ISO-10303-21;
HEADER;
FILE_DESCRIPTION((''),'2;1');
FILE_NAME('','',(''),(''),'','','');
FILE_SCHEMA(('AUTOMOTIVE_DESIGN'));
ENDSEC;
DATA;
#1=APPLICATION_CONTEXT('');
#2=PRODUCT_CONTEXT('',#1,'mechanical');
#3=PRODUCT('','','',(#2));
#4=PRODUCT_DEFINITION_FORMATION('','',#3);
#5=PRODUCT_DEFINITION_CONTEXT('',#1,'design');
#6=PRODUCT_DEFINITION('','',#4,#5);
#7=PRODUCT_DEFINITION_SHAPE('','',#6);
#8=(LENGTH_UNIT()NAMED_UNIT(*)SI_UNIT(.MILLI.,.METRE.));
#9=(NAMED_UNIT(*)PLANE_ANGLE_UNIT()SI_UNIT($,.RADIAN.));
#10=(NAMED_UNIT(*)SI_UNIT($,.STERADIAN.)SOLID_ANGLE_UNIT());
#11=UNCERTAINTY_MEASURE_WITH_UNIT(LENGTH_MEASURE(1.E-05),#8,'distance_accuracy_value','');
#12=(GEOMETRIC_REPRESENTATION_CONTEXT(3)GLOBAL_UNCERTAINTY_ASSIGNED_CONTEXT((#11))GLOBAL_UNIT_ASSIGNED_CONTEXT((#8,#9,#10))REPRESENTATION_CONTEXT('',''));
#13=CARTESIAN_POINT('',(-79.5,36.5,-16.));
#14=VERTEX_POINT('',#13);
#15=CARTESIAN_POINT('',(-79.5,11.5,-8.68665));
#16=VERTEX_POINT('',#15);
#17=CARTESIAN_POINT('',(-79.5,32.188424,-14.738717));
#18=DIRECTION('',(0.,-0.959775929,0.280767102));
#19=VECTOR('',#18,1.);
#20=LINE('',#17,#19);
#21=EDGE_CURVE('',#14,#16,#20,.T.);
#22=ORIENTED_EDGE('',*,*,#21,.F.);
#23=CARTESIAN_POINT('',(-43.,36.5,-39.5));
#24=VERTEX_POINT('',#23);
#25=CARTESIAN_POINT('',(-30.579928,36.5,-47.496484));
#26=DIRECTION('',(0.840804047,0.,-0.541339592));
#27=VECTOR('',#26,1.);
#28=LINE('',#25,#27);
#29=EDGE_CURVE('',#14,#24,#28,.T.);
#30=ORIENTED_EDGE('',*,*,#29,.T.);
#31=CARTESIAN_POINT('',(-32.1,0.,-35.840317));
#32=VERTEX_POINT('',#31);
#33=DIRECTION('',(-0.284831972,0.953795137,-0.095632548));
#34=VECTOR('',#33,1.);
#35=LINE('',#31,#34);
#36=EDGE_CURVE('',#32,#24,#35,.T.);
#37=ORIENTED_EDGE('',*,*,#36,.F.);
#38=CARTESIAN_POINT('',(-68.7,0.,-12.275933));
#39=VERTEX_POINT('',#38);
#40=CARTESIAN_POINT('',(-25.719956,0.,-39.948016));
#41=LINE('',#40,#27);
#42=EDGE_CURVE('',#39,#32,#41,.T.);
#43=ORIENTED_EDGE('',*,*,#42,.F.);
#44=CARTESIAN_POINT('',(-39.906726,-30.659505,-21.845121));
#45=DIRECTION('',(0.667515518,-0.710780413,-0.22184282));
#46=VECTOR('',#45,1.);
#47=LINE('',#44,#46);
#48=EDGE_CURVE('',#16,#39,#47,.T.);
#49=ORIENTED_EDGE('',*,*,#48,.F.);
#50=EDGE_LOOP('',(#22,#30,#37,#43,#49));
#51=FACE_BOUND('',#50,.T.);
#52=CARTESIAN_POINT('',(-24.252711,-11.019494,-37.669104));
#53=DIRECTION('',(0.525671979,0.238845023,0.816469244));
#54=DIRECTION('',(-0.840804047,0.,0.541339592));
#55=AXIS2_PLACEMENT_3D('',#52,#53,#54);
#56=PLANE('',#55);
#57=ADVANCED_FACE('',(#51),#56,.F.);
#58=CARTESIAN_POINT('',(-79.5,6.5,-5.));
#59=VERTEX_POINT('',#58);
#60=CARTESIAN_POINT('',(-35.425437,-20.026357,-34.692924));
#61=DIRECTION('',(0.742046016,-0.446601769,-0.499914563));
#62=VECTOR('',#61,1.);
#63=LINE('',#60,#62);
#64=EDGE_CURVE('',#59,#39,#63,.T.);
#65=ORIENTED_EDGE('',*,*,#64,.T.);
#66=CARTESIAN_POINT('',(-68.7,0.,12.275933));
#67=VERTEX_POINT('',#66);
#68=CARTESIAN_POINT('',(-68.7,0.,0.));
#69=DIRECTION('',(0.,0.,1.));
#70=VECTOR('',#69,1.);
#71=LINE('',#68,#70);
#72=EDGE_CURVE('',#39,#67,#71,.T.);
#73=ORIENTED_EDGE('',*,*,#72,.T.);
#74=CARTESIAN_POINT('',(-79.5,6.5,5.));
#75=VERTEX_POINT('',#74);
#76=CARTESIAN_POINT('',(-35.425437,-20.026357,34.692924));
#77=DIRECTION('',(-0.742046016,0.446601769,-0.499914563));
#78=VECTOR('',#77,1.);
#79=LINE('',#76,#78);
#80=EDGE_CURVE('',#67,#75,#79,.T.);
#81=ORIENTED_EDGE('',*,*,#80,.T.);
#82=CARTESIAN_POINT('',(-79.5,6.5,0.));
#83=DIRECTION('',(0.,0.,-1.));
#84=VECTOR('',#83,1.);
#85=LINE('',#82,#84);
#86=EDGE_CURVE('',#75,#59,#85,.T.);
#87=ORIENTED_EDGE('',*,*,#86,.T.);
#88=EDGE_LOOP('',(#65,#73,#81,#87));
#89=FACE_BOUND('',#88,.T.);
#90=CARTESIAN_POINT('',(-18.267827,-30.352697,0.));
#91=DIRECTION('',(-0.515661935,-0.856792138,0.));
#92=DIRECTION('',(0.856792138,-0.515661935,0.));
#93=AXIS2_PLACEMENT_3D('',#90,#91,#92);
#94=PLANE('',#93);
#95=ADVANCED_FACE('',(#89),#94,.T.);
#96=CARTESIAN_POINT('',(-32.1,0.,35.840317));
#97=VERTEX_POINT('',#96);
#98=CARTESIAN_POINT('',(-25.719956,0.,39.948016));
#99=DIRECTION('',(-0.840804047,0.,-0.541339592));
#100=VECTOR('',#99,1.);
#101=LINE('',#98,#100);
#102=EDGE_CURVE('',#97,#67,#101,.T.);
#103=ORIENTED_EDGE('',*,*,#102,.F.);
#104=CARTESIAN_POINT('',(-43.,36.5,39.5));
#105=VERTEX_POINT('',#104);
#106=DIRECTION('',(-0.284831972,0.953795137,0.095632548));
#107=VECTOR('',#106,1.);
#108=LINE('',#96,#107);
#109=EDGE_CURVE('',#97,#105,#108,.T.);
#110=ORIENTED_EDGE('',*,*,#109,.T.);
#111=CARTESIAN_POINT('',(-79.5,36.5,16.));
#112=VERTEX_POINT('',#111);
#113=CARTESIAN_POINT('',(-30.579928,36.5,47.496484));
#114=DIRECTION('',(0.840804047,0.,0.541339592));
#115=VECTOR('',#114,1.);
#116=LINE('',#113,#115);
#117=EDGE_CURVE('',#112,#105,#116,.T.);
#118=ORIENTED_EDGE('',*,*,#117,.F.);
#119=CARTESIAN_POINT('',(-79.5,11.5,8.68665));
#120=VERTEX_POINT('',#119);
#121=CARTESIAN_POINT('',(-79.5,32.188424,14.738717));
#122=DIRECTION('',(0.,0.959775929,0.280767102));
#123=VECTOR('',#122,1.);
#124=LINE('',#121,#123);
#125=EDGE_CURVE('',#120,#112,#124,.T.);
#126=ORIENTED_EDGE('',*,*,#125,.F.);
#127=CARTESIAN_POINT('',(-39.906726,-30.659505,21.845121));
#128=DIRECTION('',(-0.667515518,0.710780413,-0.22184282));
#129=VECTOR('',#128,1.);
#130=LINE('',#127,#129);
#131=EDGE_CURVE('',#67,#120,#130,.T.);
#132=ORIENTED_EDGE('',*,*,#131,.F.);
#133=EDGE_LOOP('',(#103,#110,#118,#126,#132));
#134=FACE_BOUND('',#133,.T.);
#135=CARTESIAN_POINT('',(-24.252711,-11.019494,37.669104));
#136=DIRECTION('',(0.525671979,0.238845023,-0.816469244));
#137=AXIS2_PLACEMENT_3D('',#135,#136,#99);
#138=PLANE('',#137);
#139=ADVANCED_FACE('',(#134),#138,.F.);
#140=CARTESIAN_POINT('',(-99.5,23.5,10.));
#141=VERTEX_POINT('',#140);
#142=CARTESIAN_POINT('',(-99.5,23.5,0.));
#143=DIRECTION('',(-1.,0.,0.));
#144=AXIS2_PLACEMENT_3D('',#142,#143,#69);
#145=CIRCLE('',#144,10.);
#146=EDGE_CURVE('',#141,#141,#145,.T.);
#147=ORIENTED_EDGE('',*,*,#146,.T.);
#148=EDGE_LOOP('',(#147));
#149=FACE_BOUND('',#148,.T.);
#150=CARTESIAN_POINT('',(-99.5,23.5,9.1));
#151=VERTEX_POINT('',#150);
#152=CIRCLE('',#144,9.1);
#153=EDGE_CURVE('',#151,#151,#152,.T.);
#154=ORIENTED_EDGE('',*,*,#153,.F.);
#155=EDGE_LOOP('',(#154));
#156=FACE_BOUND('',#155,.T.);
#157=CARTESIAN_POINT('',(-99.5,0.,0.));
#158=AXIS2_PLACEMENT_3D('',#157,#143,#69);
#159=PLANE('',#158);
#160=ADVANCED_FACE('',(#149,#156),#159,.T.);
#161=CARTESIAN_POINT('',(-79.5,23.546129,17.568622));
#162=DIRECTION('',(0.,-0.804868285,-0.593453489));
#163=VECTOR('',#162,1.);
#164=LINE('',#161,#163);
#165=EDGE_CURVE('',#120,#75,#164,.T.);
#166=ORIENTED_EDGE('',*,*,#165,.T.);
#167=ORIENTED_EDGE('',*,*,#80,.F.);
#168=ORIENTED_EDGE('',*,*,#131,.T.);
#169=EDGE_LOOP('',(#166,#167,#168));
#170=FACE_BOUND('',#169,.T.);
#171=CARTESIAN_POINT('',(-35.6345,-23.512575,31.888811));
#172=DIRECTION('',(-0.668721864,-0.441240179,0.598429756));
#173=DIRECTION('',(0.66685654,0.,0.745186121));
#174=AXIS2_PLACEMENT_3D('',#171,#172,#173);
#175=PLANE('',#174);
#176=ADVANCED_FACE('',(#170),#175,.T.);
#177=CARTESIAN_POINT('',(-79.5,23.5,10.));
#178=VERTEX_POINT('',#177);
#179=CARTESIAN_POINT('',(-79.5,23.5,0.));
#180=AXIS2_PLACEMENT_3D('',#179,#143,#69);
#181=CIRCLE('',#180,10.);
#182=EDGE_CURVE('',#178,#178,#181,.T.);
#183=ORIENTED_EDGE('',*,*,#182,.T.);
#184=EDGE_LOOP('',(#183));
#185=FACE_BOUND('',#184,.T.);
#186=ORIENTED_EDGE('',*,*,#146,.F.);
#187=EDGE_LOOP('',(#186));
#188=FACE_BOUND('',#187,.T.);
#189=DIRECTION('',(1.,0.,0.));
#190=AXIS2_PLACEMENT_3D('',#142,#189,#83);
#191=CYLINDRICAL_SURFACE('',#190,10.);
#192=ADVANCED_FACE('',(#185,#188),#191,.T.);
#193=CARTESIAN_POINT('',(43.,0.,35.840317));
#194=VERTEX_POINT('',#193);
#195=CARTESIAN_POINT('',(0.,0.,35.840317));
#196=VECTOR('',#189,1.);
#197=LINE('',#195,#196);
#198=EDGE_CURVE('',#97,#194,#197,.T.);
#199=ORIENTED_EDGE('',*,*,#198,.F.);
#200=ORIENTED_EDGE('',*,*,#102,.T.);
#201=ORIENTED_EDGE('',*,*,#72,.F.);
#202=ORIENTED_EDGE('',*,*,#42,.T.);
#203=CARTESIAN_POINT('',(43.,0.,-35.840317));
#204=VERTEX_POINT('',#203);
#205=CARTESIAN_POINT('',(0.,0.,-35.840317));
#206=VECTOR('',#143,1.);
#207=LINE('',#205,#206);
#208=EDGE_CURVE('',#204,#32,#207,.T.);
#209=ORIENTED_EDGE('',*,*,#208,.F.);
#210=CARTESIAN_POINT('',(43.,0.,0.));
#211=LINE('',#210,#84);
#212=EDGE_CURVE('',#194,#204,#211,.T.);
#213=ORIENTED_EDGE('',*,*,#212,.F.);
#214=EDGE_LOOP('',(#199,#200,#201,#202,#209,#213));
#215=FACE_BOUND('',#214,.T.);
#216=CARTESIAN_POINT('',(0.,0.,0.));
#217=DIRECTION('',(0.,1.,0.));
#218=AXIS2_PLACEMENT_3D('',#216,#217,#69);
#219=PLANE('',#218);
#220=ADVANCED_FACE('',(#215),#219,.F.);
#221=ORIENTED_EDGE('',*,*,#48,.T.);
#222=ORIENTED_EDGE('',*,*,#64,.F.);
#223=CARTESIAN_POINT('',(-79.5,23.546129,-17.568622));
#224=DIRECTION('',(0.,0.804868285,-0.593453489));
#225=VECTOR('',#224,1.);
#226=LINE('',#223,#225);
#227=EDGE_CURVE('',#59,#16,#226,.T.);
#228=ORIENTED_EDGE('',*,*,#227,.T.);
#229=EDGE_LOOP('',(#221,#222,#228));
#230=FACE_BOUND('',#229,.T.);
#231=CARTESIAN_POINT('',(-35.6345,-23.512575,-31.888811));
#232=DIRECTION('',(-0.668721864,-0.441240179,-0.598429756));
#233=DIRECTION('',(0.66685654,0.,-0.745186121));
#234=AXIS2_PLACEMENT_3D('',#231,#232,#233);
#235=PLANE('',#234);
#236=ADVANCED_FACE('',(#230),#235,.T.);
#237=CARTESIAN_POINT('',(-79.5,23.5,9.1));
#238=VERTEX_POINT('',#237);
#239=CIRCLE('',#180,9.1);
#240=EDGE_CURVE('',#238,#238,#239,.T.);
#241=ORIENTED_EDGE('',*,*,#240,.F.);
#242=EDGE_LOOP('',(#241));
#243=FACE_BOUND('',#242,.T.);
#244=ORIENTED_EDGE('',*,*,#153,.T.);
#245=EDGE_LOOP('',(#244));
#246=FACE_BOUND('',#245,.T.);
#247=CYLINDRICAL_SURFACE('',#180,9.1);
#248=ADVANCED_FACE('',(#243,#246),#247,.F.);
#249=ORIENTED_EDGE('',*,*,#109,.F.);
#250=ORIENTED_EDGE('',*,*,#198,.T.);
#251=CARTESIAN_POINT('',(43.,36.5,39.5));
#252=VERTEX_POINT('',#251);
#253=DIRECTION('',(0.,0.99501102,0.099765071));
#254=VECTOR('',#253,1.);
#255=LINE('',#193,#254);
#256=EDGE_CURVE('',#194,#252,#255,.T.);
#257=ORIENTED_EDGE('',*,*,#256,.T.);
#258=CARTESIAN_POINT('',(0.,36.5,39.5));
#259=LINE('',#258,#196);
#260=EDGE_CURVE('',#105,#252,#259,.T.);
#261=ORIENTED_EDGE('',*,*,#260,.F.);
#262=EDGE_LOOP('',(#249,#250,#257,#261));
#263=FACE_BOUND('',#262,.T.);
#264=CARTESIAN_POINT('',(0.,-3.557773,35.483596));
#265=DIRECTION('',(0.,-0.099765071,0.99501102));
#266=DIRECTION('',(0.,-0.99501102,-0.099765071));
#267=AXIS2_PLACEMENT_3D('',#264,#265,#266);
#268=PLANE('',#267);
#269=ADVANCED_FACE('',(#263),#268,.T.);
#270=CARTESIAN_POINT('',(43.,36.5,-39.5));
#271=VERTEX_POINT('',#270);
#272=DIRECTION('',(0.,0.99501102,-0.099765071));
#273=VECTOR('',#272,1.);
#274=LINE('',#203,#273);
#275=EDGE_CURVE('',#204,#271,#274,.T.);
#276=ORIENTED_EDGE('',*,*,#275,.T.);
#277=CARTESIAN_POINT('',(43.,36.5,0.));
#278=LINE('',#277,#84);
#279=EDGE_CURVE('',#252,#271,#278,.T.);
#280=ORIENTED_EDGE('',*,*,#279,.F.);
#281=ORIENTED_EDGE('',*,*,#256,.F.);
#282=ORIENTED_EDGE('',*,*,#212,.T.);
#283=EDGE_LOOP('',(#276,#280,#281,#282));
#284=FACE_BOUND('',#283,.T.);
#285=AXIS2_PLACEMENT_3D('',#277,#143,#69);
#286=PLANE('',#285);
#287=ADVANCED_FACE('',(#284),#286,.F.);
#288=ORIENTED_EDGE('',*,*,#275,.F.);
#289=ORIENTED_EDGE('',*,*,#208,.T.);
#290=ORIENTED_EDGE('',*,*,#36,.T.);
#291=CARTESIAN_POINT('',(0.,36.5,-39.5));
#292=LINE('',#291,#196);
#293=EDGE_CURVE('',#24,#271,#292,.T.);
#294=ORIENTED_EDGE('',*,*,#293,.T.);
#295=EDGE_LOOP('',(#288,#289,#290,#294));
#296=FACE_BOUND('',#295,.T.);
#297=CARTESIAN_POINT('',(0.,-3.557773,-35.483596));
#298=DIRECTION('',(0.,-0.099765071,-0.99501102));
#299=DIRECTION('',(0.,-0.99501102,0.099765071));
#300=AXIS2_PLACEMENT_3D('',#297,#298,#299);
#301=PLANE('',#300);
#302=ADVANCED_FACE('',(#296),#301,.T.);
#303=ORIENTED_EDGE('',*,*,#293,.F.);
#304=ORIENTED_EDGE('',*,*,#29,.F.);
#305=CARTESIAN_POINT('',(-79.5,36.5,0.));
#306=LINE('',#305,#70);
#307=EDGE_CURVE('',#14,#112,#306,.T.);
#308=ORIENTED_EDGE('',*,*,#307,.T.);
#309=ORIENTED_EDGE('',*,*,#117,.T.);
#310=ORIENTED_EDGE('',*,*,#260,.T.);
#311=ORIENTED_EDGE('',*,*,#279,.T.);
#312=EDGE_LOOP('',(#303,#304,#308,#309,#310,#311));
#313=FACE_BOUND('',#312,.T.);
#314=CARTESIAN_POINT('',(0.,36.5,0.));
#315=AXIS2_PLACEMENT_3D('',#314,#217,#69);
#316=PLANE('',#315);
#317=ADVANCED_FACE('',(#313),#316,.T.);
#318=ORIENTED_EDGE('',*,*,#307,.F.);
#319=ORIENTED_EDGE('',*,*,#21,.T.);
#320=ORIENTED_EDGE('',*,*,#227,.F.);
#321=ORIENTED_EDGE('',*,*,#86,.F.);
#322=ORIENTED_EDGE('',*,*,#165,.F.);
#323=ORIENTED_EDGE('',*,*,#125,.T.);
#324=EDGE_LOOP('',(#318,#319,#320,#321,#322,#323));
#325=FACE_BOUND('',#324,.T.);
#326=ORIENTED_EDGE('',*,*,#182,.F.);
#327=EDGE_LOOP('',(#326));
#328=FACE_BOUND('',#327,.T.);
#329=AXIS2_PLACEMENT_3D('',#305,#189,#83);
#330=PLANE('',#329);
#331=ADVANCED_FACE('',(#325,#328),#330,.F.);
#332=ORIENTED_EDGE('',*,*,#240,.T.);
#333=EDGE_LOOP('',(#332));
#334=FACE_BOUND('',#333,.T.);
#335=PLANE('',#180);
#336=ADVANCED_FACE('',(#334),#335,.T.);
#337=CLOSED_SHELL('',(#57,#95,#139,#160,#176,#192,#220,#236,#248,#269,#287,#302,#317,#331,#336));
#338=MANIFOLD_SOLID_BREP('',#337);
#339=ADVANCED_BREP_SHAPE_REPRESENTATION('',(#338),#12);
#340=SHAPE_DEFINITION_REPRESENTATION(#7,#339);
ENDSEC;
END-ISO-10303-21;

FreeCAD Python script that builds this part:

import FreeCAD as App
import Part
import Sketcher

V = App.Vector

doc = App.newDocument("Part")
body = doc.addObject("PartDesign::Body", "Body")

sketch1 = body.newObject("Sketcher::SketchObject", "Sketch")
sketch1.AttachmentSupport = (doc.getObject("XZ_Plane"), [""])
sketch1.MapMode = "FlatFace"
sketch1.addGeometry([
    Part.LineSegment(V(-79.5, -16, 0), V(-79.5, 16, 0)),
    Part.LineSegment(V(-79.5, 16, 0), V(-43, 39.5, 0)),
    Part.LineSegment(V(-43, 39.5, 0), V(43, 39.5, 0)),
    Part.LineSegment(V(43, 39.5, 0), V(43, -39.5, 0)),
    Part.LineSegment(V(43, -39.5, 0), V(-43, -39.5, 0)),
    Part.LineSegment(V(-43, -39.5, 0), V(-79.5, -16, 0)),
], False)
sketch1.addConstraint([
    Sketcher.Constraint("Coincident", 0, 2, 1, 1),
    Sketcher.Constraint("Coincident", 1, 2, 2, 1),
    Sketcher.Constraint("Coincident", 2, 2, 3, 1),
    Sketcher.Constraint("Coincident", 3, 2, 4, 1),
    Sketcher.Constraint("Coincident", 4, 2, 5, 1),
    Sketcher.Constraint("Coincident", 5, 2, 0, 1),
    Sketcher.Constraint("Vertical", 0),
    Sketcher.Constraint("Horizontal", 2),
    Sketcher.Constraint("Vertical", 3),
    Sketcher.Constraint("Horizontal", 4),
    Sketcher.Constraint("Symmetric", 1, 2, 3, 2, -1, 1),
    Sketcher.Constraint("Vertical", 1, 2, 4, 2),
    Sketcher.Constraint("Equal", 1, 5),
    Sketcher.Constraint("DistanceX", 2, 1, 2, 2, 86.0),
    Sketcher.Constraint("DistanceY", 0, 1, 0, 2, 32.0),
    Sketcher.Constraint("DistanceY", 3, 2, 3, 1, 79.0),
    Sketcher.Constraint("DistanceX", 0, 2, -1, 1, 79.5),
])
pad1 = body.newObject("PartDesign::Pad", "Pad")
pad1.Profile = sketch1
pad1.Length = 36.5
pad1.Reversed = True

sketch2 = body.newObject("Sketcher::SketchObject", "Sketch001")
sketch2.Placement = App.Placement(V(-24.252711, -11.019494, 37.669104), App.Rotation(V(0.850687352, -0.147591398, 0.504527312), V(0, 0.95977593, 0.280767102), V(-0.525671979, -0.238845023, 0.816469244), "ZXY"))
sketch2.addGeometry([
    Part.LineSegment(V(-9.224645, 10.062782, 0), V(-22.037813, 46.122122, 0)),
    Part.LineSegment(V(-22.037813, 46.122122, 0), V(-64.944294, 39.524095, 0)),
    Part.LineSegment(V(-64.944294, 39.524095, 0), V(-109.490465, 32.673922, 0)),
    Part.LineSegment(V(-109.490465, 32.673922, 0), V(-56.610292, -14.345266, 0)),
    Part.LineSegment(V(-56.610292, -14.345266, 0), V(-9.224645, 10.062782, 0)),
], False)
sketch2.addConstraint([
    Sketcher.Constraint("Coincident", 0, 2, 1, 1),
    Sketcher.Constraint("Coincident", 1, 2, 2, 1),
    Sketcher.Constraint("Coincident", 2, 2, 3, 1),
    Sketcher.Constraint("Coincident", 3, 2, 4, 1),
    Sketcher.Constraint("Coincident", 4, 2, 0, 1),
    Sketcher.Constraint("Parallel", 1, 2),
    Sketcher.Constraint("DistanceX", 1, 2, 3, 2, 8.334001),
    Sketcher.Constraint("DistanceY", 2, 2, 0, 2, 13.4482),
    Sketcher.Constraint("Distance", 1, 43.410828),
    Sketcher.Constraint("Distance", 4, 53.302461),
    Sketcher.Constraint("DistanceY", -1, 1, 2, 2, 32.673922),
    Sketcher.Constraint("DistanceY", -1, 1, 4, 2, 10.062782),
    Sketcher.Constraint("DistanceX", 1, 2, 0, 2, 42.90648),
    Sketcher.Constraint("DistanceY", 3, 2, 1, 2, 53.869361),
    Sketcher.Constraint("DistanceX", 0, 2, -1, 1, 22.037813),
])
pocket1 = body.newObject("PartDesign::Pocket", "Pocket")
pocket1.Profile = sketch2
pocket1.Type = "ThroughAll"
pocket1.Reversed = True

sketch3 = body.newObject("Sketcher::SketchObject", "Sketch002")
sketch3.Placement = App.Placement(V(0, -3.557773, 35.483596), App.Rotation(V(1, 0, 0), V(0, 0.99501102, 0.099765071), V(0, -0.099765071, 0.99501102), "ZXY"))
sketch3.addGeometry([
    Part.LineSegment(V(43, 3.575612, 0), V(43, 40.258623, 0)),
    Part.LineSegment(V(43, 40.258623, 0), V(-43, 40.258623, 0)),
    Part.LineSegment(V(-43, 40.258623, 0), V(-38.621653, -4.136842, 0)),
    Part.LineSegment(V(-38.621653, -4.136842, 0), V(43, 3.575612, 0)),
], False)
sketch3.addConstraint([
    Sketcher.Constraint("Coincident", 0, 2, 1, 1),
    Sketcher.Constraint("Coincident", 1, 2, 2, 1),
    Sketcher.Constraint("Coincident", 2, 2, 3, 1),
    Sketcher.Constraint("Coincident", 3, 2, 0, 1),
    Sketcher.Constraint("Vertical", 0),
    Sketcher.Constraint("Horizontal", 1),
    Sketcher.Constraint("DistanceX", 1, 2, 1, 1, 86.0),
    Sketcher.Constraint("DistanceX", -1, 1, 0, 2, 43.0),
    Sketcher.Constraint("DistanceY", 0, 1, 0, 2, 36.683011),
    Sketcher.Constraint("Distance", 2, 44.610842),
    Sketcher.Constraint("Distance", 3, 81.985219),
    Sketcher.Constraint("DistanceY", 2, 2, -1, 1, 4.136842),
])
pocket2 = body.newObject("PartDesign::Pocket", "Pocket001")
pocket2.Profile = sketch3
pocket2.Type = "ThroughAll"
pocket2.Reversed = True
doc.recompute()

mirrored = body.newObject("PartDesign::Mirrored", "Mirrored")
mirrored.Originals = [pocket1, pocket2]
mirrored.MirrorPlane = (doc.getObject("XY_Plane"), [""])
body.Tip = mirrored

sketch4 = body.newObject("Sketcher::SketchObject", "Sketch003")
sketch4.Placement = App.Placement(V(-18.267827, -30.352697, 0), App.Rotation(V(-0.856792138, 0.515661935, 0), V(0, 0, -0.999999999), V(-0.515661935, -0.856792138, 0), "ZXY"))
sketch4.addGeometry([
    Part.LineSegment(V(28.388314, 49.971531, 0), V(28.388314, -45.208515, 0)),
    Part.LineSegment(V(28.388314, -45.208515, 0), V(80.884748, -45.208515, 0)),
    Part.LineSegment(V(80.884748, -45.208515, 0), V(80.884748, 49.971531, 0)),
    Part.LineSegment(V(80.884748, 49.971531, 0), V(28.388314, 49.971531, 0)),
], False)
sketch4.addConstraint([
    Sketcher.Constraint("Coincident", 0, 2, 1, 1),
    Sketcher.Constraint("Coincident", 1, 2, 2, 1),
    Sketcher.Constraint("Coincident", 2, 2, 3, 1),
    Sketcher.Constraint("Coincident", 3, 2, 0, 1),
    Sketcher.Constraint("Vertical", 0),
    Sketcher.Constraint("Horizontal", 1),
    Sketcher.Constraint("Vertical", 2),
    Sketcher.Constraint("Horizontal", 3),
    Sketcher.Constraint("DistanceX", 1, 1, 1, 2, 52.496434),
    Sketcher.Constraint("DistanceY", 0, 2, 0, 1, 95.180046),
    Sketcher.Constraint("DistanceY", -1, 1, 2, 2, 49.971531),
    Sketcher.Constraint("DistanceX", -1, 1, 0, 2, 28.388314),
])
pocket3 = body.newObject("PartDesign::Pocket", "Pocket002")
pocket3.Profile = sketch4
pocket3.Type = "ThroughAll"
pocket3.Reversed = True

sketch5 = body.newObject("Sketcher::SketchObject", "Sketch004")
sketch5.Placement = App.Placement(V(-35.6345, -23.512575, 31.888811), App.Rotation(V(0.49949502, 0.329579881, 0.801175279), V(-0.550741131, 0.834676109, 0), V(-0.668721864, -0.441240179, 0.598429756), "ZXY"))
sketch5.addGeometry([
    Part.LineSegment(V(-47.220912, 78.260817, 0), V(-47.220912, 35.024855, 0)),
    Part.LineSegment(V(-47.220912, 35.024855, 0), V(32.81798, 35.024855, 0)),
    Part.LineSegment(V(32.81798, 35.024855, 0), V(32.81798, 78.260817, 0)),
    Part.LineSegment(V(32.81798, 78.260817, 0), V(-47.220912, 78.260817, 0)),
], False)
sketch5.addConstraint([
    Sketcher.Constraint("Coincident", 0, 2, 1, 1),
    Sketcher.Constraint("Coincident", 1, 2, 2, 1),
    Sketcher.Constraint("Coincident", 2, 2, 3, 1),
    Sketcher.Constraint("Coincident", 3, 2, 0, 1),
    Sketcher.Constraint("Vertical", 0),
    Sketcher.Constraint("Horizontal", 1),
    Sketcher.Constraint("Vertical", 2),
    Sketcher.Constraint("Horizontal", 3),
    Sketcher.Constraint("DistanceX", 1, 1, 1, 2, 80.038893),
    Sketcher.Constraint("DistanceY", 0, 2, 0, 1, 43.235963),
    Sketcher.Constraint("DistanceX", -1, 1, 1, 2, 32.81798),
    Sketcher.Constraint("DistanceY", -1, 1, 0, 2, 35.024855),
])
pocket4 = body.newObject("PartDesign::Pocket", "Pocket003")
pocket4.Profile = sketch5
pocket4.Type = "ThroughAll"
pocket4.Reversed = True
doc.recompute()

mirrored2 = body.newObject("PartDesign::Mirrored", "Mirrored001")
mirrored2.Originals = [pocket4]
mirrored2.MirrorPlane = (doc.getObject("XY_Plane"), [""])
body.Tip = mirrored2

sketch6 = body.newObject("Sketcher::SketchObject", "Sketch005")
sketch6.AttachmentSupport = (doc.getObject("YZ_Plane"), [""])
sketch6.MapMode = "FlatFace"
sketch6.AttachmentOffset = App.Placement(V(0, 0, -79.5), App.Rotation())
sketch6.addGeometry(Part.Circle(V(23.5, 0, 0), V(0, 0, 1), 10), False)
sketch6.addConstraint([
    Sketcher.Constraint("PointOnObject", 0, 3, -1),
    Sketcher.Constraint("Diameter", 0, 20.0),
    Sketcher.Constraint("DistanceX", -1, 1, 0, 3, 23.5),
])
pad2 = body.newObject("PartDesign::Pad", "Pad001")
pad2.Profile = sketch6
pad2.Length = 20
pad2.Reversed = True

sketch7 = body.newObject("Sketcher::SketchObject", "Sketch006")
sketch7.AttachmentSupport = (doc.getObject("YZ_Plane"), [""])
sketch7.MapMode = "FlatFace"
sketch7.AttachmentOffset = App.Placement(V(0, 0, -99.5), App.Rotation())
sketch7.addGeometry(Part.Circle(V(23.5, 0, 0), V(0, 0, 1), 9.1), False)
sketch7.addConstraint([
    Sketcher.Constraint("PointOnObject", 0, 3, -1),
    Sketcher.Constraint("Diameter", 0, 18.2),
    Sketcher.Constraint("DistanceX", -1, 1, 0, 3, 23.5),
])
pocket5 = body.newObject("PartDesign::Pocket", "Pocket004")
pocket5.Profile = sketch7
pocket5.Length = 20
pocket5.Reversed = True

doc.recompute()
